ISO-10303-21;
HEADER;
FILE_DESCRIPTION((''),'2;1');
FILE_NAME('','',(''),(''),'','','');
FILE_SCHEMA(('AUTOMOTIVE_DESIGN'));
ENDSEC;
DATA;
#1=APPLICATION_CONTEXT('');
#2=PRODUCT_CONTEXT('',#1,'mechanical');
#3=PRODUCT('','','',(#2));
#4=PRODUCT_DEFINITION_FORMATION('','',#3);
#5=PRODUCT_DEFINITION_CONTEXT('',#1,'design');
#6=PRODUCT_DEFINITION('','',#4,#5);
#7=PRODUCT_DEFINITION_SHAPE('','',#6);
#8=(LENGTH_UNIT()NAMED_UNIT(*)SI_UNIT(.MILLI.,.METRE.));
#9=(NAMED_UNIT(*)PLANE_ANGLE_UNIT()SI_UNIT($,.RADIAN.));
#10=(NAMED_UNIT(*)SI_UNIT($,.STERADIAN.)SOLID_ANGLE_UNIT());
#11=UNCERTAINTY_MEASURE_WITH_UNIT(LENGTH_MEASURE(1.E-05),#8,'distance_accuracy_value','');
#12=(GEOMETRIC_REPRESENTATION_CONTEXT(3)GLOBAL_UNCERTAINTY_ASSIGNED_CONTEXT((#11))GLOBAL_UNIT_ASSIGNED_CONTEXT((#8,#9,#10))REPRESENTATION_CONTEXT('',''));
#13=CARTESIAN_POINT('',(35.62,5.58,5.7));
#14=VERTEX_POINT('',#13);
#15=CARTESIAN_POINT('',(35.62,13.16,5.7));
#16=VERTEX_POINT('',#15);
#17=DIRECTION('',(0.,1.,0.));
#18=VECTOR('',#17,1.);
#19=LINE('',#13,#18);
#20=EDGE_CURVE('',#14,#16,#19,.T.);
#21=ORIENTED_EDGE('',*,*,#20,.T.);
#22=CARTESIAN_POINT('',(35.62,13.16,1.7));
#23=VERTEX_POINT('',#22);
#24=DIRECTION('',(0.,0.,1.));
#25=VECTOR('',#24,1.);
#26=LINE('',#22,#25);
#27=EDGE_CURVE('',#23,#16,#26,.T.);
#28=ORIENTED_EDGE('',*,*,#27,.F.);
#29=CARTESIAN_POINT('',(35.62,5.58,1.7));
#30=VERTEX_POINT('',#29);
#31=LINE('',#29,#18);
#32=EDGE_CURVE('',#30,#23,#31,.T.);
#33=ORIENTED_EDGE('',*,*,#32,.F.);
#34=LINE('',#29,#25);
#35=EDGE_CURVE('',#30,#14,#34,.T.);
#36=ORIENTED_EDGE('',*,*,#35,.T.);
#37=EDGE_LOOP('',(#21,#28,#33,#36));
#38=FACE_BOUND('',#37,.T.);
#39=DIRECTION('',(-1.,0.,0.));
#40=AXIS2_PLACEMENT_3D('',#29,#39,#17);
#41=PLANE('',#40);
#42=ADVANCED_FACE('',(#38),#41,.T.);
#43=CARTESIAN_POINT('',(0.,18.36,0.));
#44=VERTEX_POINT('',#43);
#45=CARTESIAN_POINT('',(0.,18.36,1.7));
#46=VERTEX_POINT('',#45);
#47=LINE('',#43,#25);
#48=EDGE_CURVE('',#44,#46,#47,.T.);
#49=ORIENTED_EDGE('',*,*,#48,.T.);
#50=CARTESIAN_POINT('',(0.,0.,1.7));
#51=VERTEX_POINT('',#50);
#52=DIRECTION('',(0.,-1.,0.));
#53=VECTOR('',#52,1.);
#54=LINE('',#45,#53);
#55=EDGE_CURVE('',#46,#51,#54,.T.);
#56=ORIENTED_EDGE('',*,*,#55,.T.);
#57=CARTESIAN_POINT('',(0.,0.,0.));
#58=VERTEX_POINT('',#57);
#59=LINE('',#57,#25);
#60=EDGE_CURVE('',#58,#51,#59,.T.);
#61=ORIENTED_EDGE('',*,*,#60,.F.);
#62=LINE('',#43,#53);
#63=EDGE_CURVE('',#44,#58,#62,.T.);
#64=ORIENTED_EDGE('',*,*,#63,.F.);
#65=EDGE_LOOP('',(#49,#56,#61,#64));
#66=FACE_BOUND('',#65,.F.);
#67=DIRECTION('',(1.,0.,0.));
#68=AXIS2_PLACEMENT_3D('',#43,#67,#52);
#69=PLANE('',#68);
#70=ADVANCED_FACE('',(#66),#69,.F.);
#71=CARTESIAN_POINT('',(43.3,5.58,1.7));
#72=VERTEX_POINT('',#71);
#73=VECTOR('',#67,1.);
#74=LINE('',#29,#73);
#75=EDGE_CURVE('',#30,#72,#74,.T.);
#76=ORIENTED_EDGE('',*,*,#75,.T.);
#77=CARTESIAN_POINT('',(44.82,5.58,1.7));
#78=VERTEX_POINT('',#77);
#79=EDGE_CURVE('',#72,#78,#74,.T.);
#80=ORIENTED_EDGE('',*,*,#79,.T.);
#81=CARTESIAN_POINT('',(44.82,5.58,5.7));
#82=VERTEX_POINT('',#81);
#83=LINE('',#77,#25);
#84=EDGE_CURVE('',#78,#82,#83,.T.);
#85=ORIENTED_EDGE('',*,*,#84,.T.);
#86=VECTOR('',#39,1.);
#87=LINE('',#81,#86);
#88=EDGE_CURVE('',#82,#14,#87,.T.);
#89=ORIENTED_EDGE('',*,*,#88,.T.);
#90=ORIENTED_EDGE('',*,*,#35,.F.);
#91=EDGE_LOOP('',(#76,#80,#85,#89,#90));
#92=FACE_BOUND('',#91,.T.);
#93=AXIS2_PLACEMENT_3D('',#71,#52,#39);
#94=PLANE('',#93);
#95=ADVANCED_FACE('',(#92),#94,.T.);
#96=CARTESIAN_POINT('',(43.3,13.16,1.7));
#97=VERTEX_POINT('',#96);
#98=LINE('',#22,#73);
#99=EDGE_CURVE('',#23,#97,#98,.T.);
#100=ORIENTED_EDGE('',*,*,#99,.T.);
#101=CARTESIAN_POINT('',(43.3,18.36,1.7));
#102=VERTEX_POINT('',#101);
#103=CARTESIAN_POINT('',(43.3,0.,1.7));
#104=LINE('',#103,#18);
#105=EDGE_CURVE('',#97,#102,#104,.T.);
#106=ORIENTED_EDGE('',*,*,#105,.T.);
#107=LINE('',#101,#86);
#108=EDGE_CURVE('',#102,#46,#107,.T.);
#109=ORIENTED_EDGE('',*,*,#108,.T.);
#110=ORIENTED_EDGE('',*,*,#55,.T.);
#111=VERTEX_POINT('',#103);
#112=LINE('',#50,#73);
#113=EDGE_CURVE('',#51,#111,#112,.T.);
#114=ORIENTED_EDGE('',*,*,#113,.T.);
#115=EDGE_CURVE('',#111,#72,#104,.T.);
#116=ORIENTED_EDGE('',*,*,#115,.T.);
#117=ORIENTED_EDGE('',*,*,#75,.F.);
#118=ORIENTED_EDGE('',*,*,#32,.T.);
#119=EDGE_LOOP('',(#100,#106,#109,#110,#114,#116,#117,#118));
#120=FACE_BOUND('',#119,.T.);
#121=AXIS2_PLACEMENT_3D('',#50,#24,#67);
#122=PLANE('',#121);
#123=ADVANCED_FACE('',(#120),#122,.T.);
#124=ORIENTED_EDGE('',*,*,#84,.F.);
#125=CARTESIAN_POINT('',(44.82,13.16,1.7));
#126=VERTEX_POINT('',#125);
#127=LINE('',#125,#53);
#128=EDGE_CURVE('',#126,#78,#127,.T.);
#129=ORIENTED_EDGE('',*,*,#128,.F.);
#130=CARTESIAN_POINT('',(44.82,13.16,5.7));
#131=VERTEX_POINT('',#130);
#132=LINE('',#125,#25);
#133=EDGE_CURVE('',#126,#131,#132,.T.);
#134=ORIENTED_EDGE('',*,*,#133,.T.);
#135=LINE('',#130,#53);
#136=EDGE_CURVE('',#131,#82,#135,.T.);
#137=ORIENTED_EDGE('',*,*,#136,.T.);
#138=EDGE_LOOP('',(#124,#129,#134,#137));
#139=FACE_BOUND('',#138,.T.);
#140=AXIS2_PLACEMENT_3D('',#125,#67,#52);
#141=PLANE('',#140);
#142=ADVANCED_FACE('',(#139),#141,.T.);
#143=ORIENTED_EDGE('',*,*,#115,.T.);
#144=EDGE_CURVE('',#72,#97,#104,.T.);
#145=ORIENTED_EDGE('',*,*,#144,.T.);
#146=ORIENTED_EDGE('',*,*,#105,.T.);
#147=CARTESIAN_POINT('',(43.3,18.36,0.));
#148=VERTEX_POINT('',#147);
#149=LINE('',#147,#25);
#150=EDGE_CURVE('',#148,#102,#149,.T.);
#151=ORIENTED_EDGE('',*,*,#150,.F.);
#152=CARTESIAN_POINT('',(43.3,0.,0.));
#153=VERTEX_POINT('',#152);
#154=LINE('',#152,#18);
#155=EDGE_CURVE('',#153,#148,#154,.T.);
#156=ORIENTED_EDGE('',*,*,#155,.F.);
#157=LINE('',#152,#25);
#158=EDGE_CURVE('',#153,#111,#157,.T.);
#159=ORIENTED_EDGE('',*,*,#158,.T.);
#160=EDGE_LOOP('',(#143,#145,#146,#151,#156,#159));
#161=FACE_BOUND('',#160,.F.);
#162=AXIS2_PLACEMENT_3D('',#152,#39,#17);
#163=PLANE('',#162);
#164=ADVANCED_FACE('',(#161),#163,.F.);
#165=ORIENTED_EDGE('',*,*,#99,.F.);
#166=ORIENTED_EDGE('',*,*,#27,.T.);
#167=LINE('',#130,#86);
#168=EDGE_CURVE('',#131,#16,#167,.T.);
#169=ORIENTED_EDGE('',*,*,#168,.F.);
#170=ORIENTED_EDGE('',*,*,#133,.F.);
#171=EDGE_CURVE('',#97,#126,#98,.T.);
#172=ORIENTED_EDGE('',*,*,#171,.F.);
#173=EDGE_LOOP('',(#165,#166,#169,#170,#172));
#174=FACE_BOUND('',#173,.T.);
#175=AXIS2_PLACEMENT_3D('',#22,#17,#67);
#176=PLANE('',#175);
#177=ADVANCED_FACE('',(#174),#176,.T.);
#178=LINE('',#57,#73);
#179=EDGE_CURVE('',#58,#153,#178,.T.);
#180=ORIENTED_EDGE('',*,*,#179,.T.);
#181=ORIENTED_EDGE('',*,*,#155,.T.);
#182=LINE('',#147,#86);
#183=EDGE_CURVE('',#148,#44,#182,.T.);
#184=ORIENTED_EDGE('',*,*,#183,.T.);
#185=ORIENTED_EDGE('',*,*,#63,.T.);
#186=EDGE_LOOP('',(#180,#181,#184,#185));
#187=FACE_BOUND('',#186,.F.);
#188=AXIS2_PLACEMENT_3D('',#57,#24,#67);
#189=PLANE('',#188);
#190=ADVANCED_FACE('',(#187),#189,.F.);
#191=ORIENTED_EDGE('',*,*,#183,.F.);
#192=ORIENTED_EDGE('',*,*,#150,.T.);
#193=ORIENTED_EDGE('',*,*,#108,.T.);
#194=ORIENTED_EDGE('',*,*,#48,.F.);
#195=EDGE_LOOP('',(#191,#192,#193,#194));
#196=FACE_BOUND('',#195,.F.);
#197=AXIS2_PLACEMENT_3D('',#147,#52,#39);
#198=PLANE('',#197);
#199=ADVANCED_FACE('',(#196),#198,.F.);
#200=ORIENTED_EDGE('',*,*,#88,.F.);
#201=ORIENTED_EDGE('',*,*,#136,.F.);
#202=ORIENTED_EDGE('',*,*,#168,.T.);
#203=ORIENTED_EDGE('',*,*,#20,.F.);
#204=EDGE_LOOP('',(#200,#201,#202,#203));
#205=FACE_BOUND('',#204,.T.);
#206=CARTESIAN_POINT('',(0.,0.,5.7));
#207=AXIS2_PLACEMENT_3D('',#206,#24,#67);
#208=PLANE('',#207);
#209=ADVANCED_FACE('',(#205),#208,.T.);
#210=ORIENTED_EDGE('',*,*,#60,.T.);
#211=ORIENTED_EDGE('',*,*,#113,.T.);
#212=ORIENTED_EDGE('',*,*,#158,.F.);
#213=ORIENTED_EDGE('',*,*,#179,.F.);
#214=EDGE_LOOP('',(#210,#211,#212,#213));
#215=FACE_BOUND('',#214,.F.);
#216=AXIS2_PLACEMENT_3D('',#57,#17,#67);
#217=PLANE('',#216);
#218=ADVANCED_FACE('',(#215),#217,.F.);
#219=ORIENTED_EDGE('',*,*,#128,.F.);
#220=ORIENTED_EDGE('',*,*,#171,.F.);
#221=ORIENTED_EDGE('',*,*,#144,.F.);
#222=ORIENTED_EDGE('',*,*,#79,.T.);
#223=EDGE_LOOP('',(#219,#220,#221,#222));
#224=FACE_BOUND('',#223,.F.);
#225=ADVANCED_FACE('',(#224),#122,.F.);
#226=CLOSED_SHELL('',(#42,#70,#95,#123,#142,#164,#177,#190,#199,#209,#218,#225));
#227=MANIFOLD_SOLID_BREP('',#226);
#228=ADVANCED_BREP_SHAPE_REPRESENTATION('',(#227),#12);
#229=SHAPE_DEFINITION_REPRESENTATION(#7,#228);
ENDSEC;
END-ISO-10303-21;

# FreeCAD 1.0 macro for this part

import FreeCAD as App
import Part
import Sketcher
from FreeCAD import Vector
Q = App.Units.Quantity

doc = App.newDocument("Part")
body = doc.addObject("PartDesign::Body", "Body")

sketch1 = body.newObject("Sketcher::SketchObject", "Sketch")
sketch1.AttachmentSupport = (doc.getObject("XY_Plane"), [""])
sketch1.MapMode = "FlatFace"
sketch1.addGeometry(Part.LineSegment(Vector(0, 18, 0), Vector(0, 0, 0)), False)
sketch1.addGeometry(Part.LineSegment(Vector(0, 0, 0), Vector(43, 0, 0)), False)
sketch1.addGeometry(Part.LineSegment(Vector(43, 0, 0), Vector(43, 18, 0)), False)
sketch1.addGeometry(Part.LineSegment(Vector(43, 18, 0), Vector(0, 18, 0)), False)
sketch1.addConstraint(Sketcher.Constraint("Coincident", 0, 2, 1, 1))
sketch1.addConstraint(Sketcher.Constraint("Coincident", 1, 2, 2, 1))
sketch1.addConstraint(Sketcher.Constraint("Coincident", 2, 2, 3, 1))
sketch1.addConstraint(Sketcher.Constraint("Coincident", 3, 2, 0, 1))
sketch1.addConstraint(Sketcher.Constraint("Vertical", 0))
sketch1.addConstraint(Sketcher.Constraint("Horizontal", 1))
sketch1.addConstraint(Sketcher.Constraint("Vertical", 2))
sketch1.addConstraint(Sketcher.Constraint("Horizontal", 3))
sketch1.addConstraint(Sketcher.Constraint("Coincident", 0, 2, -1, 1))
sketch1.addConstraint(Sketcher.Constraint("DistanceX", 1, 1, 1, 2, Q("43.3 mm")))
sketch1.addConstraint(Sketcher.Constraint("DistanceY", 0, 2, 0, 1, Q("18.36 mm")))
pad1 = body.newObject("PartDesign::Pad", "Pad")
pad1.Profile = sketch1
pad1.Length = 1.7

sketch2 = body.newObject("Sketcher::SketchObject", "Sketch001")
sketch2.AttachmentSupport = (doc.getObject("XY_Plane"), [""])
sketch2.MapMode = "FlatFace"
sketch2.AttachmentOffset = App.Placement(Vector(0, 0, 1.7), App.Rotation())
sketch2.addGeometry(Part.LineSegment(Vector(36, 6, 0), Vector(45, 6, 0)), False)
sketch2.addGeometry(Part.LineSegment(Vector(45, 6, 0), Vector(45, 13, 0)), False)
sketch2.addGeometry(Part.LineSegment(Vector(45, 13, 0), Vector(36, 13, 0)), False)
sketch2.addGeometry(Part.LineSegment(Vector(36, 13, 0), Vector(36, 6, 0)), False)
sketch2.addConstraint(Sketcher.Constraint("Coincident", 0, 2, 1, 1))
sketch2.addConstraint(Sketcher.Constraint("Coincident", 1, 2, 2, 1))
sketch2.addConstraint(Sketcher.Constraint("Coincident", 2, 2, 3, 1))
sketch2.addConstraint(Sketcher.Constraint("Coincident", 3, 2, 0, 1))
sketch2.addConstraint(Sketcher.Constraint("Horizontal", 0))
sketch2.addConstraint(Sketcher.Constraint("Vertical", 1))
sketch2.addConstraint(Sketcher.Constraint("Horizontal", 2))
sketch2.addConstraint(Sketcher.Constraint("Vertical", 3))
sketch2.addConstraint(Sketcher.Constraint("DistanceX", 0, 1, 0, 2, Q("9.2 mm")))
sketch2.addConstraint(Sketcher.Constraint("DistanceY", 1, 1, 1, 2, Q("7.58 mm")))
sketch2.addConstraint(Sketcher.Constraint("DistanceX", -1, 1, 0, 2, Q("44.82 mm")))
sketch2.addConstraint(Sketcher.Constraint("DistanceY", -1, 1, 0, 2, Q("5.58 mm")))
pad2 = body.newObject("PartDesign::Pad", "Pad001")
pad2.Profile = sketch2
pad2.Length = 4

doc.recompute()
